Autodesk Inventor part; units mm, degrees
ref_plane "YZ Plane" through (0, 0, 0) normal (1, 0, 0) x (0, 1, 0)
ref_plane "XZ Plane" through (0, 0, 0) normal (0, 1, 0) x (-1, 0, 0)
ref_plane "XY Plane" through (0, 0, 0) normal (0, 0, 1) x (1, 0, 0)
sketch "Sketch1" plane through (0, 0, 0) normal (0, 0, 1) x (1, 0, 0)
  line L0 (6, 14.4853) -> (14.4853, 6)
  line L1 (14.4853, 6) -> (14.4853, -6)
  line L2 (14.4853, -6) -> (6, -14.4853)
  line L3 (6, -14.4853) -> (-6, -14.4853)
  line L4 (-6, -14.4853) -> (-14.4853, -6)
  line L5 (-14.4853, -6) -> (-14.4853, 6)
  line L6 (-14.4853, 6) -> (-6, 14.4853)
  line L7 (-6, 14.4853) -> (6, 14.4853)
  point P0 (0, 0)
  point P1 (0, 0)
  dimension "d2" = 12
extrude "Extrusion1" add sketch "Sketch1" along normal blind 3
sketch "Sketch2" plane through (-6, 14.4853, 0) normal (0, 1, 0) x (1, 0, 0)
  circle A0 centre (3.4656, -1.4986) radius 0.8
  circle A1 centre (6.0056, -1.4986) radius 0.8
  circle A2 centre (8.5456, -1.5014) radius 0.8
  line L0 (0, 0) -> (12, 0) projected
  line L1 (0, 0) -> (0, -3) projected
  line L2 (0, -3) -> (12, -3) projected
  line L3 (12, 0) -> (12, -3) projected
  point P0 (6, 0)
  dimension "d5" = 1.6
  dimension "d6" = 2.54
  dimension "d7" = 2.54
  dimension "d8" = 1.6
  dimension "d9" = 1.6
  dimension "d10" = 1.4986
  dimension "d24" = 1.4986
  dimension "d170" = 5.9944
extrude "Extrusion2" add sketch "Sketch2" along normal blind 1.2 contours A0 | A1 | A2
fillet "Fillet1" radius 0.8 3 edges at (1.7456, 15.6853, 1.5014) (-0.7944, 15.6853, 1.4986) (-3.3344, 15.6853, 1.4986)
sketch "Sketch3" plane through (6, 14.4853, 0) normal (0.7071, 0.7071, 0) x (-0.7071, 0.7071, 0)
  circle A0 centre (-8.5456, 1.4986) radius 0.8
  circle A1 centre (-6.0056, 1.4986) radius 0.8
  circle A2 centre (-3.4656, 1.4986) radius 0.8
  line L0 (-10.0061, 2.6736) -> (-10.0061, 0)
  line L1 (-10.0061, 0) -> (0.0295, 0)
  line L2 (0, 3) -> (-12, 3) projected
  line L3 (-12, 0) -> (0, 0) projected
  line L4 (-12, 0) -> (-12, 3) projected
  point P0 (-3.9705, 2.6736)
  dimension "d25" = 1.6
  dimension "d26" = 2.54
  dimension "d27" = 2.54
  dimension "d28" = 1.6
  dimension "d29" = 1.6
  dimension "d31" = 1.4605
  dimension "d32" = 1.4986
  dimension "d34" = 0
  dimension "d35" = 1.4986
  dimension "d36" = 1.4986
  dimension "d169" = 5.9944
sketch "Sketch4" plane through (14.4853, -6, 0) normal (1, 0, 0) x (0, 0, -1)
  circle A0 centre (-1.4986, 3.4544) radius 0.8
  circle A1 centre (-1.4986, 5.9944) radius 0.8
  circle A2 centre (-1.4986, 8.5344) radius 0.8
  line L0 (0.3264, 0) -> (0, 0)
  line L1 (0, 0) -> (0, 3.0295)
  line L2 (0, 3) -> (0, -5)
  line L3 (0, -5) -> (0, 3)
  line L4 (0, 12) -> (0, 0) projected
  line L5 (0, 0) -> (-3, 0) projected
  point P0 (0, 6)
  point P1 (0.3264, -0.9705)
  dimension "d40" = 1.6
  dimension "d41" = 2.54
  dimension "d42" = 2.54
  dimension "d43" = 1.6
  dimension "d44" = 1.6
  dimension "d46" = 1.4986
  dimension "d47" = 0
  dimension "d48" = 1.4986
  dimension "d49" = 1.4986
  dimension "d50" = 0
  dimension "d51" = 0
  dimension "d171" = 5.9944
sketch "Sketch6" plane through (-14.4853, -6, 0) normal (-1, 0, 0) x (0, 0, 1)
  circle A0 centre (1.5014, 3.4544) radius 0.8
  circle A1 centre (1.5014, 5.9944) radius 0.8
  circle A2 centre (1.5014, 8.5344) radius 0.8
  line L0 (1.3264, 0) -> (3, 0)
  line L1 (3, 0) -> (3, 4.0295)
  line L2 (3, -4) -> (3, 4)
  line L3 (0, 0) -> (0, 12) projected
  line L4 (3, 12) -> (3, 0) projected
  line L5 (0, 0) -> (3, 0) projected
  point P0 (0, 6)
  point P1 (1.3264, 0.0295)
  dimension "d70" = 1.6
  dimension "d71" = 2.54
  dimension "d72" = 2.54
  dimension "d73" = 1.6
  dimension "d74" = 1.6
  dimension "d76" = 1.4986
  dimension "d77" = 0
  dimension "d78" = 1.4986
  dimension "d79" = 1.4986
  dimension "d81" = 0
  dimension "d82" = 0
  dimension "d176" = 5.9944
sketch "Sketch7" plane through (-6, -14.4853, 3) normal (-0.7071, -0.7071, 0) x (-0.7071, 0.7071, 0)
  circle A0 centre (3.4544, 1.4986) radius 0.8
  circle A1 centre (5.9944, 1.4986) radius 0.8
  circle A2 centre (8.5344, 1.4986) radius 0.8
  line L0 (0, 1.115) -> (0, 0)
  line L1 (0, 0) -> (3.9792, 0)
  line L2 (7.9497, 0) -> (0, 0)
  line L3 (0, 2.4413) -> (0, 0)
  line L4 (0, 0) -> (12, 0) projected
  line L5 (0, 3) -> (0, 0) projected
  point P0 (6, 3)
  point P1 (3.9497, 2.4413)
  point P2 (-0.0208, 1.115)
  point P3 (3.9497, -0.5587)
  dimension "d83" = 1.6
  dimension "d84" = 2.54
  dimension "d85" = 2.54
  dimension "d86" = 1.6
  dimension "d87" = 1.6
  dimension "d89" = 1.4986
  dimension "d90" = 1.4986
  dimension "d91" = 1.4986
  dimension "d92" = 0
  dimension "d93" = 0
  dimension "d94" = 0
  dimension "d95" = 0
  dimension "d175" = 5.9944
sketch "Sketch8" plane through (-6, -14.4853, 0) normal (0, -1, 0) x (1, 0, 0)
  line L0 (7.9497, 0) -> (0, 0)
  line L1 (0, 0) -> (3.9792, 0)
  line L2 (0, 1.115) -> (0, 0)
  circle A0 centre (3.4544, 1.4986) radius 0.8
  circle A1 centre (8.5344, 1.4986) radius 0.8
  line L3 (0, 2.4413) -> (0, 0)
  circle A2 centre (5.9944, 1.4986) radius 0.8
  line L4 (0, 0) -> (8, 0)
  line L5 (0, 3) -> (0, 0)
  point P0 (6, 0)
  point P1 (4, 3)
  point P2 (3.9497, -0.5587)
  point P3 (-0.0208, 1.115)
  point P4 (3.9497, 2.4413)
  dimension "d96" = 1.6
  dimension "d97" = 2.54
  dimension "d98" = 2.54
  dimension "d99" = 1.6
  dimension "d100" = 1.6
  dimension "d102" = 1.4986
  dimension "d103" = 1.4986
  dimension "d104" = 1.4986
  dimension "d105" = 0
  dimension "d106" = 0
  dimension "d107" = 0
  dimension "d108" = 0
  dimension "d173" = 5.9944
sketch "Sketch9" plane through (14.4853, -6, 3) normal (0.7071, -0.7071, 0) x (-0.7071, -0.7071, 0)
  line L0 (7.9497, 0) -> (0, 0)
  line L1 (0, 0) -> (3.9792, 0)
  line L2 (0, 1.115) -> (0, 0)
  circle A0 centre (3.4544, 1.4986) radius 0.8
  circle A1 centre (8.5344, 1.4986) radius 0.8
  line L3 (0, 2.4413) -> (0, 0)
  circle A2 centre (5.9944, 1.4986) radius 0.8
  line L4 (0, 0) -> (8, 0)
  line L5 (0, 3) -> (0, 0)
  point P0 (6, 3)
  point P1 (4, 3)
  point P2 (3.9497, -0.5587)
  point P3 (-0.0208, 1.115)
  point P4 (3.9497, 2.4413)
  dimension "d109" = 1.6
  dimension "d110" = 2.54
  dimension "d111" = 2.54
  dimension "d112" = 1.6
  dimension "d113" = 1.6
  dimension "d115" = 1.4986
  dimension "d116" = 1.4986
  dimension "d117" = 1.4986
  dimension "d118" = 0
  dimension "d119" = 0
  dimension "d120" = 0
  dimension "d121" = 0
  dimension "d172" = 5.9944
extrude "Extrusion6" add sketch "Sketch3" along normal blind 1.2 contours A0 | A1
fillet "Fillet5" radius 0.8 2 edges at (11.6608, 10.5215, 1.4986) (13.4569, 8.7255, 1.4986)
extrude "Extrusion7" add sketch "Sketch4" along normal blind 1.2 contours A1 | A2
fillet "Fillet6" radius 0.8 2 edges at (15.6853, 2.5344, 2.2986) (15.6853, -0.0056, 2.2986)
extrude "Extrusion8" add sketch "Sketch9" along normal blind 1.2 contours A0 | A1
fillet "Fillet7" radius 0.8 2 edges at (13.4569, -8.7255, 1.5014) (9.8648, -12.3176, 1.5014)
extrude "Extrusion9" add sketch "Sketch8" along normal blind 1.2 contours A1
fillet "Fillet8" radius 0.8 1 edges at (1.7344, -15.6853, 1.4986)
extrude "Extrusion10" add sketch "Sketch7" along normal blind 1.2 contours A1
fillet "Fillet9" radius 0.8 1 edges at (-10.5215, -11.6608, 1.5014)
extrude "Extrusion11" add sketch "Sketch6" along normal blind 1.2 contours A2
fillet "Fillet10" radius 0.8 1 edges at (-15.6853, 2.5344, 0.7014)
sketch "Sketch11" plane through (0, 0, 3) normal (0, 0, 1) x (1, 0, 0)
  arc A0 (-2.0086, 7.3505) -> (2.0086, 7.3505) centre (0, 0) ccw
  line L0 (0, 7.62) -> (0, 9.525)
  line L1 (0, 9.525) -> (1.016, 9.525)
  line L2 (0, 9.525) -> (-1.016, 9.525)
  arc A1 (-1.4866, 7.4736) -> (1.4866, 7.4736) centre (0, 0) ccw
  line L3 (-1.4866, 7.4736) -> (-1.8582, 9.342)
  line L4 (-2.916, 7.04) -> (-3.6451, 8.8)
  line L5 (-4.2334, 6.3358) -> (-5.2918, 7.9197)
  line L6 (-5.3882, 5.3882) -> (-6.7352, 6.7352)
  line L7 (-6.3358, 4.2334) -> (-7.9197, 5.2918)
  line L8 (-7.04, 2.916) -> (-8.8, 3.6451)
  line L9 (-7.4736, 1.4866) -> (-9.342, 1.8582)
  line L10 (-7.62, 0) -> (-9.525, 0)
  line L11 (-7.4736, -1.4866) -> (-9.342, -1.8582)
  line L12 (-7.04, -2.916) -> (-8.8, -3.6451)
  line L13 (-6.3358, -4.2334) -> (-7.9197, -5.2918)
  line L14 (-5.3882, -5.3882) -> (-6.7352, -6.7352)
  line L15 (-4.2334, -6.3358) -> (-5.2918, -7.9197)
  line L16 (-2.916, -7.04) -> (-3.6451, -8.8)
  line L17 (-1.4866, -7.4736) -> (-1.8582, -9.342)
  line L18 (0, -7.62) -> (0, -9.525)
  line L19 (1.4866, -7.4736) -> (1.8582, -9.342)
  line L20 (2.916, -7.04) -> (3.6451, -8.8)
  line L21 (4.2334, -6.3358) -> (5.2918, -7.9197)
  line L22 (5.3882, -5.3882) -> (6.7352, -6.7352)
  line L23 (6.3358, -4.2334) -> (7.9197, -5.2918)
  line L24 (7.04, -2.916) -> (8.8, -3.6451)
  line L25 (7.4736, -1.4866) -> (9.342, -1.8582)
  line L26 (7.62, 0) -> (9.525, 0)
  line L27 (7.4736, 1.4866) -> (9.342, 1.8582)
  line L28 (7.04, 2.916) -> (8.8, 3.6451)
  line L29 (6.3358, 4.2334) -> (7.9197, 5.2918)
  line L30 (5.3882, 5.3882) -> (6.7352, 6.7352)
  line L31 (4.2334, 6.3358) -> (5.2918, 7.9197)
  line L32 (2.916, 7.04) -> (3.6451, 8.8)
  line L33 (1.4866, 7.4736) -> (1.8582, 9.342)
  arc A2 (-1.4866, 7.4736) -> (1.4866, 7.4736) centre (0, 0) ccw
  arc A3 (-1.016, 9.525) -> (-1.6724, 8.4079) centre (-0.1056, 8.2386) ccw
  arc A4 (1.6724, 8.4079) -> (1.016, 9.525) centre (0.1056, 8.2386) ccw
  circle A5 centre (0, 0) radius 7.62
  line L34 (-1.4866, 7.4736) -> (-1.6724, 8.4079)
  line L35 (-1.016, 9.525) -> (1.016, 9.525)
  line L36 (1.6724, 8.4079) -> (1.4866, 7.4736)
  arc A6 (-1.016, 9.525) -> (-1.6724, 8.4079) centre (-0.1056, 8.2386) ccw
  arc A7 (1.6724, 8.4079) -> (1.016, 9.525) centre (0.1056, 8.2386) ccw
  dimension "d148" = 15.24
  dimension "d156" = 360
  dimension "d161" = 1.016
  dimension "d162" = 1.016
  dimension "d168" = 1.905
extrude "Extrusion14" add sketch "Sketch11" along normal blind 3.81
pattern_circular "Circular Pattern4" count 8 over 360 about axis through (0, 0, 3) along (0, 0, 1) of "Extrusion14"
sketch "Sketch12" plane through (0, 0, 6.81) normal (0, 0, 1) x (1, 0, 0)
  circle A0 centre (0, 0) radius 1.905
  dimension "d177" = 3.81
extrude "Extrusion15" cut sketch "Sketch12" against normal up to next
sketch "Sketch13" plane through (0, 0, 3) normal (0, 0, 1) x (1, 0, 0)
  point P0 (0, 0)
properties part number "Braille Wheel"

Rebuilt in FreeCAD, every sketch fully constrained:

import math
import FreeCAD as App
import Part
import Sketcher

V = App.Vector
Q = App.Units.Quantity


def edges_at(feature, points):
    """Names of the edges that pass closest to the given points."""
    edges = feature.Shape.Edges
    near = lambda p: min(range(len(edges)), key=lambda i: edges[i].distToShape(Part.Vertex(*p))[0])
    return sorted({f"Edge{near(p) + 1}" for p in points})

doc = App.newDocument("Part")
params = doc.addObject("Spreadsheet::Sheet", "Params")
for row, (alias, value) in enumerate([
    ("pad1_length", "0.1181102 in"),
    ("sketch2_diameter", "0.063 in"),
    ("pad2_length", "1.2 mm"),
    ("fillet_radius", "0.0314961 in"),
    ("sketch3_diameter", "0.063 in"),
    ("pad3_length", "1.2 mm"),
    ("fillet2_radius", "0.0314961 in"),
    ("sketch4_diameter", "0.063 in"),
    ("pad4_length", "1.2 mm"),
    ("fillet3_radius", "0.0314961 in"),
    ("sketch5_diameter", "0.063 in"),
    ("pad5_length", "1.2 mm"),
    ("fillet4_radius", "0.0314961 in"),
    ("sketch6_diameter", "0.063 in"),
    ("pad6_length", "1.2 mm"),
    ("fillet5_radius", "0.0314961 in"),
    ("sketch7_diameter", "0.063 in"),
    ("pad7_length", "1.2 mm"),
    ("fillet6_radius", "0.0314961 in"),
    ("sketch8_diameter", "0.063 in"),
    ("pad8_length", "1.2 mm"),
    ("fillet7_radius", "0.0314961 in"),
    ("sketch9_radius", "0.3 in"),
    ("pad9_length", "0.15 in"),
    ("sketch10_diameter", "0.15 in"),
], start=1):
    params.set(f"A{row}", alias)
    params.set(f"B{row}", "=" + value)
    params.setAlias(f"B{row}", alias)

body = doc.addObject("PartDesign::Body", "Body")

# Sketch on XY plane
sketch1 = doc.addObject("Sketcher::SketchObject", "Sketch")
body.addObject(sketch1)
sketch1.AttachmentSupport = (doc.XY_Plane, [""])
sketch1.MapMode = "FlatFace"
sketch1.addGeometry([
    Part.LineSegment(V(14.4853, 6, 0), V(6, 14.4853, 0)),  # 0
    Part.LineSegment(V(6, 14.4853, 0), V(-6, 14.4853, 0)),  # 1
    Part.LineSegment(V(-6, 14.4853, 0), V(-14.4853, 6, 0)),  # 2
    Part.LineSegment(V(-14.4853, 6, 0), V(-14.4853, -6, 0)),  # 3
    Part.LineSegment(V(-14.4853, -6, 0), V(-6, -14.4853, 0)),  # 4
    Part.LineSegment(V(-6, -14.4853, 0), V(6, -14.4853, 0)),  # 5
    Part.LineSegment(V(6, -14.4853, 0), V(14.4853, -6, 0)),  # 6
    Part.LineSegment(V(14.4853, -6, 0), V(14.4853, 6, 0)),  # 7
], False)
sketch1.addConstraint([
    Sketcher.Constraint("Coincident", 0, 2, 1, 1),
    Sketcher.Constraint("Coincident", 1, 2, 2, 1),
    Sketcher.Constraint("Coincident", 2, 2, 3, 1),
    Sketcher.Constraint("Coincident", 3, 2, 4, 1),
    Sketcher.Constraint("Coincident", 4, 2, 5, 1),
    Sketcher.Constraint("Coincident", 5, 2, 6, 1),
    Sketcher.Constraint("Coincident", 6, 2, 7, 1),
    Sketcher.Constraint("Coincident", 7, 2, 0, 1),
    Sketcher.Constraint("Horizontal", 1),
    Sketcher.Constraint("Vertical", 3),
    Sketcher.Constraint("Horizontal", 5),
    Sketcher.Constraint("Vertical", 7),
    Sketcher.Constraint("Symmetric", 0, 2, 4, 2, -1, 1),
    Sketcher.Constraint("Symmetric", 2, 2, 6, 2, -1, 1),
    Sketcher.Constraint("Perpendicular", 0, 2),
    Sketcher.Constraint("Perpendicular", 2, 4),
    Sketcher.Constraint("Perpendicular", 4, 6),
    Sketcher.Constraint("Horizontal", 3, 2, 6, 2),
    Sketcher.Constraint("Vertical", 1, 2, 4, 2),
    Sketcher.Constraint("Equal", 5, 3),
    Sketcher.Constraint("DistanceX", 1, 2, 1, 1, 12.0),
    Sketcher.Constraint("Distance", 0, 12.0),
])
pad1 = doc.addObject("PartDesign::Pad", "Pad")
body.addObject(pad1)
pad1.Profile = sketch1
pad1.setExpression("Length", "Params.pad1_length")

# Sketch on XZ plane
sketch2 = doc.addObject("Sketcher::SketchObject", "Sketch001")
body.addObject(sketch2)
sketch2.AttachmentSupport = (doc.XZ_Plane, [""])
sketch2.MapMode = "FlatFace"
sketch2.AttachmentOffset = App.Placement(V(0, 0, -14.4853), App.Rotation())
sketch2.addGeometry([
    Part.Circle(V(-2.5344, 1.4986, 0), V(0, 0, 1), 0.8),
    Part.Circle(V(0.0056, 1.4986, 0), V(0, 0, 1), 0.8),
    Part.Circle(V(2.5456, 1.5014, 0), V(0, 0, 1), 0.8),
], False)
sketch2.addConstraint([
    Sketcher.Constraint("Equal", 0, 1),
    Sketcher.Constraint("Equal", 1, 2),
    Sketcher.Constraint("Horizontal", 0, 3, 1, 3),
    Sketcher.Constraint("Diameter", 0, Q("0.063 in")),
    Sketcher.Constraint("DistanceX", 0, 3, 1, 3, Q("0.1 in")),
    Sketcher.Constraint("DistanceX", 1, 3, 2, 3, Q("0.1 in")),
    Sketcher.Constraint("DistanceY", -1, 1, 0, 3, Q("0.059 in")),
    Sketcher.Constraint("DistanceY", -1, 1, 2, 3, Q("0.0591 in")),
    Sketcher.Constraint("DistanceX", 0, 3, -1, 1, 2.5344),
])
sketch2.setExpression("Constraints[3]", "Params.sketch2_diameter")
pad2 = doc.addObject("PartDesign::Pad", "Pad001")
body.addObject(pad2)
pad2.Profile = sketch2
pad2.setExpression("Length", "Params.pad2_length")
pad2.Reversed = True
doc.recompute()

fillet = doc.addObject("PartDesign::Fillet", "Fillet")
body.addObject(fillet)
fillet.Base = (pad2, edges_at(pad2, [(1.746, 15.685, 1.501), (-0.794, 15.685, 1.499), (-3.334, 15.685, 1.499)]))
fillet.setExpression("Radius", "Params.fillet_radius")

# Sketch on an angled plane
sketch3 = doc.addObject("Sketcher::SketchObject", "Sketch002")
body.addObject(sketch3)
sketch3.Placement = App.Placement(V(6, 14.4853, 0), App.Rotation(V(-0.707106781, 0.707106781, 0), V(0, 0, 0.999999999), V(0.707106781, 0.707106781, 0), "ZXY"))
sketch3.addGeometry([
    Part.Circle(V(-8.5456, 1.4986, 0), V(0, 0, 1), 0.8),
    Part.Circle(V(-6.0056, 1.4986, 0), V(0, 0, 1), 0.8),
], False)
sketch3.addConstraint([
    Sketcher.Constraint("Equal", 0, 1),
    Sketcher.Constraint("Horizontal", 0, 3, 1, 3),
    Sketcher.Constraint("Diameter", 0, Q("0.063 in")),
    Sketcher.Constraint("DistanceX", 0, 3, 1, 3, Q("0.1 in")),
    Sketcher.Constraint("DistanceY", -1, 1, 0, 3, Q("0.059 in")),
    Sketcher.Constraint("DistanceX", 0, 3, -1, 1, 8.5456),
])
sketch3.setExpression("Constraints[2]", "Params.sketch3_diameter")
pad3 = doc.addObject("PartDesign::Pad", "Pad002")
body.addObject(pad3)
pad3.Profile = sketch3
pad3.setExpression("Length", "Params.pad3_length")
doc.recompute()

fillet2 = doc.addObject("PartDesign::Fillet", "Fillet001")
body.addObject(fillet2)
fillet2.Base = (pad3, edges_at(pad3, [(11.661, 10.521, 1.499), (13.457, 8.726, 1.499)]))
fillet2.setExpression("Radius", "Params.fillet2_radius")

# Sketch on YZ plane
sketch4 = doc.addObject("Sketcher::SketchObject", "Sketch003")
body.addObject(sketch4)
sketch4.AttachmentSupport = (doc.YZ_Plane, [""])
sketch4.MapMode = "FlatFace"
sketch4.AttachmentOffset = App.Placement(V(0, 0, 14.4853), App.Rotation())
sketch4.addGeometry([
    Part.Circle(V(-0.0056, 1.4986, 0), V(0, 0, 1), 0.8),
    Part.Circle(V(2.5344, 1.4986, 0), V(0, 0, 1), 0.8),
], False)
sketch4.addConstraint([
    Sketcher.Constraint("Equal", 0, 1),
    Sketcher.Constraint("Horizontal", 0, 3, 1, 3),
    Sketcher.Constraint("Diameter", 0, Q("0.063 in")),
    Sketcher.Constraint("DistanceX", 0, 3, 1, 3, Q("0.1 in")),
    Sketcher.Constraint("DistanceY", -1, 1, 0, 3, Q("0.059 in")),
    Sketcher.Constraint("DistanceX", 0, 3, -1, 1, 0.0056),
])
sketch4.setExpression("Constraints[2]", "Params.sketch4_diameter")
pad4 = doc.addObject("PartDesign::Pad", "Pad003")
body.addObject(pad4)
pad4.Profile = sketch4
pad4.setExpression("Length", "Params.pad4_length")
doc.recompute()

fillet3 = doc.addObject("PartDesign::Fillet", "Fillet002")
body.addObject(fillet3)
fillet3.Base = (pad4, edges_at(pad4, [(15.685, 2.534, 2.299), (15.685, -0.006, 2.299)]))
fillet3.setExpression("Radius", "Params.fillet3_radius")

# Sketch on an angled plane
sketch5 = doc.addObject("Sketcher::SketchObject", "Sketch004")
body.addObject(sketch5)
sketch5.Placement = App.Placement(V(14.4853, -6, 3), App.Rotation(V(-0.707106781, -0.707106781, 0), V(0, 0, -0.999999999), V(0.707106781, -0.707106781, 0), "ZXY"))
sketch5.addGeometry([
    Part.Circle(V(3.4544, 1.4986, 0), V(0, 0, 1), 0.8),
    Part.Circle(V(8.5344, 1.4986, 0), V(0, 0, 1), 0.8),
], False)
sketch5.addConstraint([
    Sketcher.Constraint("Equal", 0, 1),
    Sketcher.Constraint("Horizontal", 0, 3, 1, 3),
    Sketcher.Constraint("Diameter", 0, Q("0.063 in")),
    Sketcher.Constraint("DistanceY", -1, 1, 0, 3, Q("0.059 in")),
    Sketcher.Constraint("DistanceX", 0, 3, 1, 3, Q("0.2 in")),
    Sketcher.Constraint("DistanceX", -1, 1, 0, 3, Q("0.136 in")),
])
sketch5.setExpression("Constraints[2]", "Params.sketch5_diameter")
pad5 = doc.addObject("PartDesign::Pad", "Pad004")
body.addObject(pad5)
pad5.Profile = sketch5
pad5.setExpression("Length", "Params.pad5_length")
doc.recompute()

fillet4 = doc.addObject("PartDesign::Fillet", "Fillet003")
body.addObject(fillet4)
fillet4.Base = (pad5, edges_at(pad5, [(13.457, -8.726, 1.501), (9.865, -12.318, 1.501)]))
fillet4.setExpression("Radius", "Params.fillet4_radius")

# Sketch on XZ plane
sketch6 = doc.addObject("Sketcher::SketchObject", "Sketch005")
body.addObject(sketch6)
sketch6.AttachmentSupport = (doc.XZ_Plane, [""])
sketch6.MapMode = "FlatFace"
sketch6.AttachmentOffset = App.Placement(V(0, 0, 14.4853), App.Rotation())
sketch6.addGeometry(Part.Circle(V(2.5344, 1.4986, 0), V(0, 0, 1), 0.8), False)
sketch6.addConstraint([
    Sketcher.Constraint("Diameter", 0, Q("0.063 in")),
    Sketcher.Constraint("DistanceY", -1, 1, 0, 3, Q("0.059 in")),
    Sketcher.Constraint("DistanceX", -1, 1, 0, 3, 2.5344),
])
sketch6.setExpression("Constraints[0]", "Params.sketch6_diameter")
pad6 = doc.addObject("PartDesign::Pad", "Pad005")
body.addObject(pad6)
pad6.Profile = sketch6
pad6.setExpression("Length", "Params.pad6_length")
doc.recompute()

fillet5 = doc.addObject("PartDesign::Fillet", "Fillet004")
body.addObject(fillet5)
fillet5.Base = (pad6, edges_at(pad6, [(1.734, -15.685, 1.499)]))
fillet5.setExpression("Radius", "Params.fillet5_radius")

# Sketch on an angled plane
sketch7 = doc.addObject("Sketcher::SketchObject", "Sketch006")
body.addObject(sketch7)
sketch7.Placement = App.Placement(V(-6, -14.4853, 3), App.Rotation(V(-0.707106781, 0.707106781, 0), V(0, 0, -0.999999999), V(-0.707106781, -0.707106781, 0), "ZXY"))
sketch7.addGeometry(Part.Circle(V(5.9944, 1.4986, 0), V(0, 0, 1), 0.8), False)
sketch7.addConstraint([
    Sketcher.Constraint("Diameter", 0, Q("0.063 in")),
    Sketcher.Constraint("DistanceX", -1, 1, 0, 3, Q("0.236 in")),
    Sketcher.Constraint("DistanceY", -1, 1, 0, 3, Q("0.059 in")),
])
sketch7.setExpression("Constraints[0]", "Params.sketch7_diameter")
pad7 = doc.addObject("PartDesign::Pad", "Pad006")
body.addObject(pad7)
pad7.Profile = sketch7
pad7.setExpression("Length", "Params.pad7_length")
doc.recompute()

fillet6 = doc.addObject("PartDesign::Fillet", "Fillet005")
body.addObject(fillet6)
fillet6.Base = (pad7, edges_at(pad7, [(-10.521, -11.661, 1.501)]))
fillet6.setExpression("Radius", "Params.fillet6_radius")

# Sketch on YZ plane
sketch8 = doc.addObject("Sketcher::SketchObject", "Sketch007")
body.addObject(sketch8)
sketch8.AttachmentSupport = (doc.YZ_Plane, [""])
sketch8.MapMode = "FlatFace"
sketch8.AttachmentOffset = App.Placement(V(0, 0, -14.4853), App.Rotation())
sketch8.addGeometry(Part.Circle(V(2.5344, 1.5014, 0), V(0, 0, 1), 0.8), False)
sketch8.addConstraint([
    Sketcher.Constraint("Diameter", 0, Q("0.063 in")),
    Sketcher.Constraint("DistanceY", -1, 1, 0, 3, Q("0.0591 in")),
    Sketcher.Constraint("DistanceX", -1, 1, 0, 3, 2.5344),
])
sketch8.setExpression("Constraints[0]", "Params.sketch8_diameter")
pad8 = doc.addObject("PartDesign::Pad", "Pad007")
body.addObject(pad8)
pad8.Profile = sketch8
pad8.setExpression("Length", "Params.pad8_length")
pad8.Reversed = True
doc.recompute()

fillet7 = doc.addObject("PartDesign::Fillet", "Fillet006")
body.addObject(fillet7)
fillet7.Base = (pad8, edges_at(pad8, [(-15.685, 2.534, 0.701)]))
fillet7.setExpression("Radius", "Params.fillet7_radius")

# Sketch on XY plane
sketch9 = doc.addObject("Sketcher::SketchObject", "Sketch008")
body.addObject(sketch9)
sketch9.AttachmentSupport = (doc.XY_Plane, [""])
sketch9.MapMode = "FlatFace"
sketch9.AttachmentOffset = App.Placement(V(0, 0, 0.1181102 * 25.4), App.Rotation())
sketch9.addGeometry([
    Part.ArcOfCircle(Part.Circle(V(0, 0, 0), V(0, 0, 1), 7.620018), math.radians(101.250063), math.radians(438.749937)),  # 0
    Part.LineSegment(V(1.4866, 7.4736, 0), V(1.672419, 8.407896, 0)),  # 1
    Part.ArcOfCircle(Part.Circle(V(0.1056, 8.2386, 0), V(0, 0, 1), 1.57592), math.radians(6.167147), math.radians(54.712521)),  # 2
    Part.LineSegment(V(1.016, 9.525, 0), V(-1.016, 9.525, 0)),  # 3
    Part.ArcOfCircle(Part.Circle(V(-0.1056, 8.2386, 0), V(0, 0, 1), 1.575961), math.radians(125.287479), math.radians(173.832853)),  # 4
    Part.LineSegment(V(-1.672419, 8.407896, 0), V(-1.4866, 7.4736, 0)),  # 5
], False)
sketch9.addConstraint([
    Sketcher.Constraint("Coincident", 0, 2, 1, 1),
    Sketcher.Constraint("Coincident", 1, 2, 2, 1),
    Sketcher.Constraint("Coincident", 2, 2, 3, 1),
    Sketcher.Constraint("Coincident", 3, 2, 4, 1),
    Sketcher.Constraint("Coincident", 4, 2, 5, 1),
    Sketcher.Constraint("Coincident", 5, 2, 0, 1),
    Sketcher.Constraint("Horizontal", 3),
    Sketcher.Constraint("Coincident", 0, 3, -1, 1),
    Sketcher.Constraint("Equal", 2, 4),
    Sketcher.Constraint("Symmetric", 2, 3, 4, 3, -2),
    Sketcher.Constraint("Horizontal", 1, 2, 4, 2),
    Sketcher.Constraint("Horizontal", 0, 2, 5, 2),
    Sketcher.Constraint("Radius", 0, Q("0.3 in")),
    Sketcher.Constraint("DistanceX", -1, 1, 2, 2, Q("0.04 in")),
    Sketcher.Constraint("Radius", 2, 1.576),
    Sketcher.Constraint("DistanceX", 4, 3, 1, 2, Q("0.07 in")),
    Sketcher.Constraint("DistanceY", -1, 1, 2, 2, Q("0.375 in")),
    Sketcher.Constraint("Distance", 1, Q("0.0375 in")),
    Sketcher.Constraint("DistanceX", -1, 1, 0, 2, 1.4866),
])
sketch9.setExpression("Constraints[12]", "Params.sketch9_radius")
pad9 = doc.addObject("PartDesign::Pad", "Pad008")
body.addObject(pad9)
pad9.Profile = sketch9
pad9.setExpression("Length", "Params.pad9_length")
doc.recompute()

polarpattern = doc.addObject("PartDesign::PolarPattern", "PolarPattern")
body.addObject(polarpattern)
polarpattern.Originals = [pad9]
polarpattern.Axis = (doc.Z_Axis, [""])
polarpattern.Angle = 360
polarpattern.Occurrences = 8
body.Tip = polarpattern

# Sketch on XY plane
sketch10 = doc.addObject("Sketcher::SketchObject", "Sketch009")
body.addObject(sketch10)
sketch10.AttachmentSupport = (doc.XY_Plane, [""])
sketch10.MapMode = "FlatFace"
sketch10.AttachmentOffset = App.Placement(V(0, 0, 0.2681102 * 25.4), App.Rotation())
sketch10.addGeometry(Part.Circle(V(0, 0, 0), V(0, 0, 1), 1.905), False)
sketch10.addConstraint([
    Sketcher.Constraint("Coincident", 0, 3, -1, 1),
    Sketcher.Constraint("Diameter", 0, Q("0.15 in")),
])
sketch10.setExpression("Constraints[1]", "Params.sketch10_diameter")
pocket1 = doc.addObject("PartDesign::Pocket", "Pocket")
body.addObject(pocket1)
pocket1.Profile = sketch10
pocket1.Type = "UpToFirst"

doc.recompute()
